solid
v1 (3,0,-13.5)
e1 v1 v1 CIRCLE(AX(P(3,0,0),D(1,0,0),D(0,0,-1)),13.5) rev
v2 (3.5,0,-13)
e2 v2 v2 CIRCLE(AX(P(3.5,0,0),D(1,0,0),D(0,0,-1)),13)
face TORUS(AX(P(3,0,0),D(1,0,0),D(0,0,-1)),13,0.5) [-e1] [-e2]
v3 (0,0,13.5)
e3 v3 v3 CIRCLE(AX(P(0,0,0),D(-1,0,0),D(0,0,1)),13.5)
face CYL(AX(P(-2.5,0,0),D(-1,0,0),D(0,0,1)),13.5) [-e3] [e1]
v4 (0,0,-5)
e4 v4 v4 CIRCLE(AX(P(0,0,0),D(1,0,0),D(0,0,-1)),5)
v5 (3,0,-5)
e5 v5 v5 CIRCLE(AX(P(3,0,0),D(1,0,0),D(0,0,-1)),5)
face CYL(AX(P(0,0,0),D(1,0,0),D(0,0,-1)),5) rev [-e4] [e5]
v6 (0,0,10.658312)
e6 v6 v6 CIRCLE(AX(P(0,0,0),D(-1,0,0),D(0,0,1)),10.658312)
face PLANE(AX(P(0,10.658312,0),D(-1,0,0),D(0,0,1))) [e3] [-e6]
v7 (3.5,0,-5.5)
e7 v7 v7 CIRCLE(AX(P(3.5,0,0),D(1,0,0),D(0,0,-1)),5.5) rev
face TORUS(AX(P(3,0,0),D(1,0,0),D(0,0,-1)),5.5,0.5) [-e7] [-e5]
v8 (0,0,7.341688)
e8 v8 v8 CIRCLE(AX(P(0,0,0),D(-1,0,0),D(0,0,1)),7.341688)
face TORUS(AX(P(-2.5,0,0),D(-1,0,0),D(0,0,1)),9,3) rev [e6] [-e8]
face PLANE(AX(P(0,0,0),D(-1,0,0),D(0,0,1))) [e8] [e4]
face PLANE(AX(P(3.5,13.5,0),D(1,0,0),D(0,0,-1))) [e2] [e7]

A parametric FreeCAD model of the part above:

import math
import FreeCAD as App
import Part
import Sketcher

V = App.Vector
Q = App.Units.Quantity


def edges_at(feature, points):
    """Names of the edges that pass closest to the given points."""
    edges = feature.Shape.Edges
    near = lambda p: min(range(len(edges)), key=lambda i: edges[i].distToShape(Part.Vertex(*p))[0])
    return sorted({f"Edge{near(p) + 1}" for p in points})

doc = App.newDocument("Part")
body = doc.addObject("PartDesign::Body", "Body")

# Sketch on XY plane
sketch1 = doc.addObject("Sketcher::SketchObject", "Sketch")
body.addObject(sketch1)
sketch1.AttachmentSupport = (doc.XY_Plane, [""])
sketch1.MapMode = "FlatFace"
sketch1.addGeometry(Part.LineSegment(V(0, 7.3, 0), V(0, 0, 0)), False)
sketch1.addGeometry(Part.LineSegment(V(0, 0, 0), V(3.5, 0, 0)), False)
sketch1.addGeometry(Part.LineSegment(V(3.5, 0, 0), V(3.5, 13.5, 0)), False)
sketch1.addGeometry(Part.LineSegment(V(3.5, 13.5, 0), V(0, 13.5, 0)), False)
sketch1.addGeometry(Part.LineSegment(V(0, 13.5, 0), V(0, 10.7, 0)), False)
sketch1.addGeometry(Part.ArcOfCircle(Part.Circle(V(-2.5, 9, 0), V(0, 0, 1), 3), math.radians(-34), math.radians(34)), False)
sketch1.addConstraint(Sketcher.Constraint("Coincident", 0, 2, 1, 1))
sketch1.addConstraint(Sketcher.Constraint("Coincident", 1, 2, 2, 1))
sketch1.addConstraint(Sketcher.Constraint("Coincident", 2, 2, 3, 1))
sketch1.addConstraint(Sketcher.Constraint("Coincident", 3, 2, 4, 1))
sketch1.addConstraint(Sketcher.Constraint("Coincident", 4, 2, 5, 2))
sketch1.addConstraint(Sketcher.Constraint("Coincident", 5, 1, 0, 1))
sketch1.addConstraint(Sketcher.Constraint("Vertical", 0))
sketch1.addConstraint(Sketcher.Constraint("Horizontal", 1))
sketch1.addConstraint(Sketcher.Constraint("Vertical", 2))
sketch1.addConstraint(Sketcher.Constraint("Horizontal", 3))
sketch1.addConstraint(Sketcher.Constraint("Vertical", 4))
sketch1.addConstraint(Sketcher.Constraint("Coincident", 0, 2, -1, 1))
sketch1.addConstraint(Sketcher.Constraint("PointOnObject", 3, 2, -2))
sketch1.addConstraint(Sketcher.Constraint("Radius", 5, Q("3 mm")))
sketch1.addConstraint(Sketcher.Constraint("DistanceX", 1, 1, 1, 2, Q("3.5 mm")))
sketch1.addConstraint(Sketcher.Constraint("DistanceY", 2, 1, 2, 2, Q("13.5 mm")))
sketch1.addConstraint(Sketcher.Constraint("DistanceY", -1, 1, 5, 3, Q("9 mm")))
sketch1.addConstraint(Sketcher.Constraint("DistanceX", 5, 3, 1, 2, Q("6 mm")))
revolution = doc.addObject("PartDesign::Revolution", "Revolution")
body.addObject(revolution)
revolution.Profile = sketch1
revolution.ReferenceAxis = (sketch1, ["H_Axis"])
revolution.Angle = 360
doc.recompute()

fillet = doc.addObject("PartDesign::Fillet", "Fillet")
body.addObject(fillet)
fillet.Base = (revolution, edges_at(revolution, [(3.5, 0, 13.5)]))
fillet.Radius = 0.5

# Sketch on YZ plane
sketch2 = doc.addObject("Sketcher::SketchObject", "Sketch001")
body.addObject(sketch2)
sketch2.AttachmentSupport = (doc.YZ_Plane, [""])
sketch2.MapMode = "FlatFace"
sketch2.AttachmentOffset = App.Placement(V(0, 0, 3.5), App.Rotation())
sketch2.addGeometry(Part.Circle(V(0, 0, 0), V(0, 0, 1), 5), False)
sketch2.addConstraint(Sketcher.Constraint("Coincident", 0, 3, -1, 1))
sketch2.addConstraint(Sketcher.Constraint("Diameter", 0, Q("10 mm")))
pocket1 = doc.addObject("PartDesign::Pocket", "Pocket")
body.addObject(pocket1)
pocket1.Profile = sketch2
pocket1.Type = "ThroughAll"
doc.recompute()

fillet2 = doc.addObject("PartDesign::Fillet", "Fillet001")
body.addObject(fillet2)
fillet2.Base = (pocket1, edges_at(pocket1, [(3.5, 0, 5)]))
fillet2.Radius = 0.5

doc.recompute()
